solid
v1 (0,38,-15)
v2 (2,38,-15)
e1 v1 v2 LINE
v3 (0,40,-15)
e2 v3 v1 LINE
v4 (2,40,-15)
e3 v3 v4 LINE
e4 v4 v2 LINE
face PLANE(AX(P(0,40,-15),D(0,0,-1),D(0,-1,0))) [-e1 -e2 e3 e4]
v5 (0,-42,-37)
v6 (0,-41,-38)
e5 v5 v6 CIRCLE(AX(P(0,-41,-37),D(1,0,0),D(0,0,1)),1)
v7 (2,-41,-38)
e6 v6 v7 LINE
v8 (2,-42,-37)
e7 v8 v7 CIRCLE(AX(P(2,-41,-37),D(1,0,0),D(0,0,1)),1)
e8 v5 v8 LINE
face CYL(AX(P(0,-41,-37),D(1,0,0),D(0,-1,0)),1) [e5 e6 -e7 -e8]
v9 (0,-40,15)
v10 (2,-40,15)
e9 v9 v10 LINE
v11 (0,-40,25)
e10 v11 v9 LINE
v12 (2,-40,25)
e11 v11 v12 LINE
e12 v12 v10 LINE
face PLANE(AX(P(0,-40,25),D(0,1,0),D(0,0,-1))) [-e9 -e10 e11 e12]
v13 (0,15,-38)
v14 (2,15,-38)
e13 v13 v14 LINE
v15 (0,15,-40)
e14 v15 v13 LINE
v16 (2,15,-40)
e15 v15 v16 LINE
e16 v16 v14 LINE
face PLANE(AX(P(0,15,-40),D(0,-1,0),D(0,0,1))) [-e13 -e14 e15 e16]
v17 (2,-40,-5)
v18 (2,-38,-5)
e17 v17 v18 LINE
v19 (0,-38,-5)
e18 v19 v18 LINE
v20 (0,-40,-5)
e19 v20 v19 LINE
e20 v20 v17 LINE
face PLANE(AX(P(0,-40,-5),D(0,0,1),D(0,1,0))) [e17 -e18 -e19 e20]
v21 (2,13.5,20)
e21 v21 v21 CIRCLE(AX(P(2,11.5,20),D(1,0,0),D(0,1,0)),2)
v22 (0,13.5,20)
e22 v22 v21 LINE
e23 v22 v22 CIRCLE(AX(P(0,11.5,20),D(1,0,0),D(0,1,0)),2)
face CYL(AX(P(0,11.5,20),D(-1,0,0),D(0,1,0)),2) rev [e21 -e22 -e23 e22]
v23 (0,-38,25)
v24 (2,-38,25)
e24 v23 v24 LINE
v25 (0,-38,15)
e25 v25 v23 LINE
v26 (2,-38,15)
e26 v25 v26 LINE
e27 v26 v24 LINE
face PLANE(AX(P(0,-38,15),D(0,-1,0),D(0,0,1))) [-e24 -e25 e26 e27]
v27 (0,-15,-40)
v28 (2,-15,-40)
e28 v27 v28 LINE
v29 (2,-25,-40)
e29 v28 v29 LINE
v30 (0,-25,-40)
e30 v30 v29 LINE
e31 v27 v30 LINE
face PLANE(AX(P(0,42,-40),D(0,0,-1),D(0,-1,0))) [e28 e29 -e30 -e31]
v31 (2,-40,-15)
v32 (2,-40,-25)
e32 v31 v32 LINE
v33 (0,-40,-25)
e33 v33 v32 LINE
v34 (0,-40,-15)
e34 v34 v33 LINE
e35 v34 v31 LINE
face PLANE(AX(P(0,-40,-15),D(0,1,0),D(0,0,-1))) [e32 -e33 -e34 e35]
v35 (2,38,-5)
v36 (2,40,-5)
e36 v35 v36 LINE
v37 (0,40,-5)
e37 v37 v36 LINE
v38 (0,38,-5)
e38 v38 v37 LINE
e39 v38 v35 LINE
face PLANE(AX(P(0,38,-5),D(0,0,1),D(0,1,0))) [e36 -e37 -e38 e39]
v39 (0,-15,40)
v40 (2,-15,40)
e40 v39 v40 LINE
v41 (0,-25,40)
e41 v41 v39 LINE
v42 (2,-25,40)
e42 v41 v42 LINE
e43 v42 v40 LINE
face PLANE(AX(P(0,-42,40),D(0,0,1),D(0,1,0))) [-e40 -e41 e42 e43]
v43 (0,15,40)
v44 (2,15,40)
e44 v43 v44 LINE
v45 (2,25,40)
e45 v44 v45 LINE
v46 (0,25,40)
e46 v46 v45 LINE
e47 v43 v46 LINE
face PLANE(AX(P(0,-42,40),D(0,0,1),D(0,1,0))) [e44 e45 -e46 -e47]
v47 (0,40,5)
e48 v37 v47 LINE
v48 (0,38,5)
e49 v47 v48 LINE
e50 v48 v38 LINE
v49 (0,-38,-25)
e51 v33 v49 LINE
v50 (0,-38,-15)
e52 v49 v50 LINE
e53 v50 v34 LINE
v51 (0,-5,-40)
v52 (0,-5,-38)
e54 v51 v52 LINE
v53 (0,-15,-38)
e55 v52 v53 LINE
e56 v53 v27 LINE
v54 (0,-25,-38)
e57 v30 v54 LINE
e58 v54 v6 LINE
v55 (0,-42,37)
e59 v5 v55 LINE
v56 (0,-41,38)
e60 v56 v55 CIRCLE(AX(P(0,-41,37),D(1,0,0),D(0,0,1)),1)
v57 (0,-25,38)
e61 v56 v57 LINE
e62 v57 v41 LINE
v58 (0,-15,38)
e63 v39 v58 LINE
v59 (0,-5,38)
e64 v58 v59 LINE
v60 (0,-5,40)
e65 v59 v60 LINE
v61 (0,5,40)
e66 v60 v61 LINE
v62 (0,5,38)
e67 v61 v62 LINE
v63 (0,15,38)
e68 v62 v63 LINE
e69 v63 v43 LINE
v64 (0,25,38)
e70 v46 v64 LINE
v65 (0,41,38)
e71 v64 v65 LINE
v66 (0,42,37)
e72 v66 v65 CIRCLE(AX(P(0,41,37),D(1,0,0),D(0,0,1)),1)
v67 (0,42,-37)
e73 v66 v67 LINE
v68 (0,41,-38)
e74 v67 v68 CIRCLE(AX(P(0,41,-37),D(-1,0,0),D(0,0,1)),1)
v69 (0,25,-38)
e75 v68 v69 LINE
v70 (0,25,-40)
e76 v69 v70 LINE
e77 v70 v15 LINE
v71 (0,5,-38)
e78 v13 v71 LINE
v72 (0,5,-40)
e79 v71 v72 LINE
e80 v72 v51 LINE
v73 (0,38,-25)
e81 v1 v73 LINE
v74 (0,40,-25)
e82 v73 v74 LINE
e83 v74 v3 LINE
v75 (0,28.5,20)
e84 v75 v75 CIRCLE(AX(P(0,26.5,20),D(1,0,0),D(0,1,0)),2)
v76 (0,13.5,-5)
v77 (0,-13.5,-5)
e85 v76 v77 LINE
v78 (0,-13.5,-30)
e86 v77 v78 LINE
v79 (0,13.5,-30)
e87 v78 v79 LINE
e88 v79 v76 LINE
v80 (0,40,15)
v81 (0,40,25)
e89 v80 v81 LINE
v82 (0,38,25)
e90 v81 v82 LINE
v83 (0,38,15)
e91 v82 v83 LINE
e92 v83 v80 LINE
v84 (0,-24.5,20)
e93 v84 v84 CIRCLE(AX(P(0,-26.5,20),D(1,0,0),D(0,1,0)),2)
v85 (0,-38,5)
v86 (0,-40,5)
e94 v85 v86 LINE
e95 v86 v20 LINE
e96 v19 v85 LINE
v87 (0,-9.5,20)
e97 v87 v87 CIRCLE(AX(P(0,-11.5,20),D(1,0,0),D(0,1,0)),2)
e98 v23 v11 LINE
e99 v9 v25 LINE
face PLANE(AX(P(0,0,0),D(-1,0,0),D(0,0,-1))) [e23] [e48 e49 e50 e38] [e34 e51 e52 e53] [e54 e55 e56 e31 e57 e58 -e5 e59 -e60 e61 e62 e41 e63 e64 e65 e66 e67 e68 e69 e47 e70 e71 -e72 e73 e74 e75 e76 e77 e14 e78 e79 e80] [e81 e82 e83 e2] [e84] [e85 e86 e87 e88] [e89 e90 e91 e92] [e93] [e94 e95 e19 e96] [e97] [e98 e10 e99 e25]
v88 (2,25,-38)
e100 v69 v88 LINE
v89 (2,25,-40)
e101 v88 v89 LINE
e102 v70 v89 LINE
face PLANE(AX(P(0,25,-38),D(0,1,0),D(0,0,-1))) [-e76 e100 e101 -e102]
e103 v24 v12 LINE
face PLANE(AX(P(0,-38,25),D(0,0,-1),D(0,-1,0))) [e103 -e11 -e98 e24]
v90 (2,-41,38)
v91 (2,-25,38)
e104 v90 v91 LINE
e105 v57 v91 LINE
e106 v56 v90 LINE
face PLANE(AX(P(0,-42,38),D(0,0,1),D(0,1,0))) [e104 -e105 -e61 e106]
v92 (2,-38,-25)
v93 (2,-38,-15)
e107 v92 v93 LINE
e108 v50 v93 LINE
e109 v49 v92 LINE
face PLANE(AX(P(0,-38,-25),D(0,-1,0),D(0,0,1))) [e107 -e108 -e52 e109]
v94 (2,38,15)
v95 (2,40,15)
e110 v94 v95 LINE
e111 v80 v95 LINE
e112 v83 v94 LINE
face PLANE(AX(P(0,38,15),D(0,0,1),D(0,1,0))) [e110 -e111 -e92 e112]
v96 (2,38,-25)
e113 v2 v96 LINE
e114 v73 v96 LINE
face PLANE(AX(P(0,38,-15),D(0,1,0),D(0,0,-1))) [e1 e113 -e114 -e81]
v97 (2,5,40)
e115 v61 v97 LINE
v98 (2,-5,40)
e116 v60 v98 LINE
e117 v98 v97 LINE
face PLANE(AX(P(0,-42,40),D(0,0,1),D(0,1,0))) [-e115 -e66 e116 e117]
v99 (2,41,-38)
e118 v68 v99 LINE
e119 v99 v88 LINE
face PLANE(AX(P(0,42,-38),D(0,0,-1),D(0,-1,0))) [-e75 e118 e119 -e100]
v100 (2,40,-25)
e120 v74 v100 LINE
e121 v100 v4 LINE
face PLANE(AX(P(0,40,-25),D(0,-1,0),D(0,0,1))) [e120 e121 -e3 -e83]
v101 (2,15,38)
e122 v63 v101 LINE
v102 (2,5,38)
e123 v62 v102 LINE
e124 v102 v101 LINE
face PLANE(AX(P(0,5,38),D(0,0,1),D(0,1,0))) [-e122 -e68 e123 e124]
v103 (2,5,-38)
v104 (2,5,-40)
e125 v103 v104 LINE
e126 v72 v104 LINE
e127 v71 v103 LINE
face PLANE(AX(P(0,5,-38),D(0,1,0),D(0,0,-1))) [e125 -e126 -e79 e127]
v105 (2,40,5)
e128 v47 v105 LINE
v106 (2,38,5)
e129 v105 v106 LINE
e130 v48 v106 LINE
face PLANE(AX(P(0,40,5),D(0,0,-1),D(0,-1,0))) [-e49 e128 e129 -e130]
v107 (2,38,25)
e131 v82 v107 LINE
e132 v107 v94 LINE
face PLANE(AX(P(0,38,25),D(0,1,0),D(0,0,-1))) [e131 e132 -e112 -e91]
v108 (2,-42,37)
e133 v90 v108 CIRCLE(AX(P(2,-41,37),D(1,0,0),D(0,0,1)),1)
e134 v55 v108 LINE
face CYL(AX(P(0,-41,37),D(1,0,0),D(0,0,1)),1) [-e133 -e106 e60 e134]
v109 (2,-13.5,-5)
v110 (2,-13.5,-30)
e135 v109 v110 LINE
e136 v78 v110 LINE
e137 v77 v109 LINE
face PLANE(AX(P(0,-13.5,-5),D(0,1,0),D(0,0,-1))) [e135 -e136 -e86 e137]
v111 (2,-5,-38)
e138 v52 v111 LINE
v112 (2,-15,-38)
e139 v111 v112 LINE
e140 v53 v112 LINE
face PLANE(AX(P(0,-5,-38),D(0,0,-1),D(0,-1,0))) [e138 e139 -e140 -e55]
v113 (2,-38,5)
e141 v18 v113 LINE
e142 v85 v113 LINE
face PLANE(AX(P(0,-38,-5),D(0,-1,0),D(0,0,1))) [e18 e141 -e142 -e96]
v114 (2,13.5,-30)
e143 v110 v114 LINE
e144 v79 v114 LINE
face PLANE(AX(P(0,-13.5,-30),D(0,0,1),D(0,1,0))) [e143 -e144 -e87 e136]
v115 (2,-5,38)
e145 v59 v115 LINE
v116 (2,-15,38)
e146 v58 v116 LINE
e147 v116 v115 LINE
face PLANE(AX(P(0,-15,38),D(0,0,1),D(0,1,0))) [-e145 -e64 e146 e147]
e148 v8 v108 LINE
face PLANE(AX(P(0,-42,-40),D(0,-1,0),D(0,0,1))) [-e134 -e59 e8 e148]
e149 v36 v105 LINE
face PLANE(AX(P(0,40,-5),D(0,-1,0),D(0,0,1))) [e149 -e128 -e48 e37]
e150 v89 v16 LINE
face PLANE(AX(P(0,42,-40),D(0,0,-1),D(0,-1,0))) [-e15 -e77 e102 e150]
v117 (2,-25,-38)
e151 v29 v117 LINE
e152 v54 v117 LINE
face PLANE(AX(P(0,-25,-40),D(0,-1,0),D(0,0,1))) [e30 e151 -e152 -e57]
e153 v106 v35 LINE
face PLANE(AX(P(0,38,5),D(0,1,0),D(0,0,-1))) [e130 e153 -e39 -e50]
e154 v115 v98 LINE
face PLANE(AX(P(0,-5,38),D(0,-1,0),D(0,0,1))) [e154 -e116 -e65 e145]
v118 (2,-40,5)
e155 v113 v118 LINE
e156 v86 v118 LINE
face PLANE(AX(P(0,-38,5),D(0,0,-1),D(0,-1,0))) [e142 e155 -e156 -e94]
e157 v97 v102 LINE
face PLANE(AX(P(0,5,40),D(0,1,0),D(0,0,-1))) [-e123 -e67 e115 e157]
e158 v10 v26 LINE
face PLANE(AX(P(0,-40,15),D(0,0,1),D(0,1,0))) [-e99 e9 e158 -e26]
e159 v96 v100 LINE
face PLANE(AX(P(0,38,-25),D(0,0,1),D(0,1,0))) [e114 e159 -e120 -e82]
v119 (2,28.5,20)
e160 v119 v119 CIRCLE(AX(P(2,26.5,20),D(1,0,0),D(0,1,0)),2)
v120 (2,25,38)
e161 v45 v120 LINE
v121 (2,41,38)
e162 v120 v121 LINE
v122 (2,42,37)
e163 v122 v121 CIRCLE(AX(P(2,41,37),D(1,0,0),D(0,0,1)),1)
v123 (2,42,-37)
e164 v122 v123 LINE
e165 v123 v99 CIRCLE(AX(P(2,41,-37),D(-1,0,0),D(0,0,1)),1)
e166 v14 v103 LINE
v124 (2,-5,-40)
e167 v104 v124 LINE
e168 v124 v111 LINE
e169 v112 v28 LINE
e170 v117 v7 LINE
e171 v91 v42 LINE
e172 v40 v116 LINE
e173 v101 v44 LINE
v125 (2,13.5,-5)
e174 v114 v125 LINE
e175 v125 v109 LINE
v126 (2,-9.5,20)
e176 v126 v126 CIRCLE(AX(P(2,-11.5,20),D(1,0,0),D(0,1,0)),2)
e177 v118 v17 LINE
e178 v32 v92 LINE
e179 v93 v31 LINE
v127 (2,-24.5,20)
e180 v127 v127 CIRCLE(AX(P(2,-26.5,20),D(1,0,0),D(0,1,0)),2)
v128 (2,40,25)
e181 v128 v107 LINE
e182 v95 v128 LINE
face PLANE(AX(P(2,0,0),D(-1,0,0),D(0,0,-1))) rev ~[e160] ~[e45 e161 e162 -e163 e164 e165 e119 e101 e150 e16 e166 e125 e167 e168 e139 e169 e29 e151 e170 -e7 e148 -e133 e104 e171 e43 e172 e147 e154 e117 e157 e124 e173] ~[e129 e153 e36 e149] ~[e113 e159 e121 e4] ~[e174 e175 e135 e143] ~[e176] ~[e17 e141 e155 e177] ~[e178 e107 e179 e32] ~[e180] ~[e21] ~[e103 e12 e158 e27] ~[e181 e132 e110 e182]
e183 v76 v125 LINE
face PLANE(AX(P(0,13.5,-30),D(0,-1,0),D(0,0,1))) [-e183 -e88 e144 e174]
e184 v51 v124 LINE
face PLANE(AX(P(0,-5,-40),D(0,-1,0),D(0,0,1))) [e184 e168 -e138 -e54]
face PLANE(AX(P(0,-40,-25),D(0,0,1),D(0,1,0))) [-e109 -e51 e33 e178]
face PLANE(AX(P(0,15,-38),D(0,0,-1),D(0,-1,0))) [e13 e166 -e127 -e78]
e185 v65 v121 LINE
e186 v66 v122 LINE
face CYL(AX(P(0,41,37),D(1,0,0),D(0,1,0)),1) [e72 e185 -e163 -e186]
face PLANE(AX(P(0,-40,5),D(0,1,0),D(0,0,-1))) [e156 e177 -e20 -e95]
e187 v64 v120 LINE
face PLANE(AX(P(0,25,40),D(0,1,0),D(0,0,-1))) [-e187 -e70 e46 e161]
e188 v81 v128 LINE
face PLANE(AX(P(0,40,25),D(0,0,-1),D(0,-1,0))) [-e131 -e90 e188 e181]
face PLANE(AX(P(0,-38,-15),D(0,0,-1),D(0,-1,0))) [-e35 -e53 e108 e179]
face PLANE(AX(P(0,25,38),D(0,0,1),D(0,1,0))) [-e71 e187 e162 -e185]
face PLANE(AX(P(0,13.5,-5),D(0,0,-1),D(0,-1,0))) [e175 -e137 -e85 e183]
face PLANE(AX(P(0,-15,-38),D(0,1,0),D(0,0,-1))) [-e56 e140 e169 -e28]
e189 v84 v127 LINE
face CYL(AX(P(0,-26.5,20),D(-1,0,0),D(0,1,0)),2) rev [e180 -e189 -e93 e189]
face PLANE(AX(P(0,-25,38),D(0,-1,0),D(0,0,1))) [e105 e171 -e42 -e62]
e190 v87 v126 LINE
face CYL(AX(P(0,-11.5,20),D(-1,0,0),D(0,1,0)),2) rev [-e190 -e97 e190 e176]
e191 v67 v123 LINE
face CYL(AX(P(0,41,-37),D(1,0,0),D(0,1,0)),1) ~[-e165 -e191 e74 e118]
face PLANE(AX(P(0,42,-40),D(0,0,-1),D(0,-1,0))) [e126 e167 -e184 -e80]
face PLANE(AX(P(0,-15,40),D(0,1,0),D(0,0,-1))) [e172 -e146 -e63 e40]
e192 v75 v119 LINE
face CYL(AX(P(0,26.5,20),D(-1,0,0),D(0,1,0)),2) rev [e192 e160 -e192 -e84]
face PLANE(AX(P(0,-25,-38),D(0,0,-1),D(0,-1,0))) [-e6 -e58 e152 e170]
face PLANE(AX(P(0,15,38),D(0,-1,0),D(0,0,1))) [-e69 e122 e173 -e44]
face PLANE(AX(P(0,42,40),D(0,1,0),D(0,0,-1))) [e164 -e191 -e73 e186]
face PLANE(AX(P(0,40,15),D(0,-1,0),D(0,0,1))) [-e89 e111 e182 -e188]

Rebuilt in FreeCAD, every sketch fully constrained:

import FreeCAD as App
import Part
import Sketcher
Q = App.Units.Quantity


def edges_at(feature, points):
    """Names of the edges that pass closest to the given points."""
    edges = feature.Shape.Edges
    near = lambda p: min(range(len(edges)), key=lambda i: edges[i].distToShape(Part.Vertex(*p))[0])
    return sorted({f"Edge{near(p) + 1}" for p in points})


def add_polygon(sketch, points):
    """Adds a closed chain of lines whose ends are joined by coincident constraints."""
    first, n = sketch.GeometryCount, len(points)
    for a, b in zip(points, points[1:] + points[:1]):
        sketch.addGeometry(Part.LineSegment(App.Vector(*a, 0), App.Vector(*b, 0)), False)
    for i in range(n):
        sketch.addConstraint(Sketcher.Constraint("Coincident", first + i, 2, first + (i + 1) % n, 1))

doc = App.newDocument("Part")
params = doc.addObject("Spreadsheet::Sheet", "Params")
for row, (alias, value) in enumerate([
    ("sketch1_width", "84 mm"),
    ("sketch1_height", "80 mm"),
    ("pad1_length", "2 mm"),
    ("sketch2_width", "17 mm"),
    ("sketch2_width2", "10 mm"),
    ("sketch2_width3", "2 mm"),
    ("pocket1_length", "2 mm"),
    ("sketch3_diameter", "4 mm"),
    ("sketch3_width", "27 mm"),
    ("sketch3_height", "25 mm"),
    ("pocket2_length", "2 mm"),
    ("fillet_radius", "1 mm"),
], start=1):
    params.set(f"A{row}", alias)
    params.set(f"B{row}", "=" + value)
    params.setAlias(f"B{row}", alias)

body = doc.addObject("PartDesign::Body", "Body")

# Sketch on YZ plane
sketch1 = body.newObject("Sketcher::SketchObject", "Sketch")
sketch1.AttachmentSupport = (doc.getObject("YZ_Plane"), [""])
sketch1.MapMode = "FlatFace"
add_polygon(sketch1, [(42, -40), (42, 40), (-42, 40), (-42, -40)])  # lines 0-3
sketch1.addConstraint([
    Sketcher.Constraint("Vertical", 0),
    Sketcher.Constraint("Horizontal", 1),
    Sketcher.Constraint("Vertical", 2),
    Sketcher.Constraint("Horizontal", 3),
    Sketcher.Constraint("Symmetric", 0, 2, 2, 2, -1, 1),
    Sketcher.Constraint("DistanceX", 1, 2, 1, 1, Q("84 mm")),
    Sketcher.Constraint("DistanceY", 0, 1, 0, 2, Q("80 mm")),
])
sketch1.setExpression("Constraints[9]", "Params.sketch1_width")
sketch1.setExpression("Constraints[10]", "Params.sketch1_height")
pad1 = body.newObject("PartDesign::Pad", "Pad")
pad1.Profile = sketch1
pad1.setExpression("Length", "Params.pad1_length")

# Sketch on YZ plane
sketch2 = body.newObject("Sketcher::SketchObject", "Sketch001")
sketch2.AttachmentSupport = (doc.getObject("YZ_Plane"), [""])
sketch2.MapMode = "FlatFace"
add_polygon(sketch2, [(-42, 40), (-42, 38), (-25, 38), (-25, 40)])  # lines 0-3
add_polygon(sketch2, [(-5, 38), (-5, 40), (-15, 40), (-15, 38)])  # lines 4-7
add_polygon(sketch2, [(15, 38), (15, 40), (5, 40), (5, 38)])  # lines 8-11
add_polygon(sketch2, [(42, 38), (42, 40), (25, 40), (25, 38)])  # lines 12-15
add_polygon(sketch2, [(40, 25), (38, 25), (38, 15), (40, 15)])  # lines 16-19
add_polygon(sketch2, [(40, 5), (38, 5), (38, -5), (40, -5)])  # lines 20-23
add_polygon(sketch2, [(40, -15), (38, -15), (38, -25), (40, -25)])  # lines 24-27
add_polygon(sketch2, [(42, -40), (42, -38), (25, -38), (25, -40)])  # lines 28-31
add_polygon(sketch2, [(15, -40), (15, -38), (5, -38), (5, -40)])  # lines 32-35
add_polygon(sketch2, [(-5, -40), (-5, -38), (-15, -38), (-15, -40)])  # lines 36-39
add_polygon(sketch2, [(-25, -40), (-25, -38), (-42, -38), (-42, -40)])  # lines 40-43
add_polygon(sketch2, [(-40, -25), (-38, -25), (-38, -15), (-40, -15)])  # lines 44-47
add_polygon(sketch2, [(-38, -5), (-38, 5), (-40, 5), (-40, -5)])  # lines 48-51
add_polygon(sketch2, [(-40, 25), (-40, 15), (-38, 15), (-38, 25)])  # lines 52-55
sketch2.addConstraint([
    Sketcher.Constraint("Vertical", 0),
    Sketcher.Constraint("Horizontal", 1),
    Sketcher.Constraint("Vertical", 2),
    Sketcher.Constraint("Horizontal", 3),
    Sketcher.Constraint("Vertical", 4),
    Sketcher.Constraint("Horizontal", 5),
    Sketcher.Constraint("Vertical", 6),
    Sketcher.Constraint("Horizontal", 7),
    Sketcher.Constraint("Vertical", 8),
    Sketcher.Constraint("Horizontal", 9),
    Sketcher.Constraint("Vertical", 10),
    Sketcher.Constraint("Horizontal", 11),
    Sketcher.Constraint("Vertical", 12),
    Sketcher.Constraint("Horizontal", 13),
    Sketcher.Constraint("Vertical", 14),
    Sketcher.Constraint("Horizontal", 15),
    Sketcher.Constraint("Horizontal", 16),
    Sketcher.Constraint("Vertical", 17),
    Sketcher.Constraint("Horizontal", 18),
    Sketcher.Constraint("Vertical", 19),
    Sketcher.Constraint("Horizontal", 20),
    Sketcher.Constraint("Vertical", 21),
    Sketcher.Constraint("Horizontal", 22),
    Sketcher.Constraint("Vertical", 23),
    Sketcher.Constraint("Horizontal", 24),
    Sketcher.Constraint("Vertical", 25),
    Sketcher.Constraint("Horizontal", 26),
    Sketcher.Constraint("Vertical", 27),
    Sketcher.Constraint("Vertical", 28),
    Sketcher.Constraint("Horizontal", 29),
    Sketcher.Constraint("Vertical", 30),
    Sketcher.Constraint("Horizontal", 31),
    Sketcher.Constraint("Vertical", 32),
    Sketcher.Constraint("Horizontal", 33),
    Sketcher.Constraint("Vertical", 34),
    Sketcher.Constraint("Horizontal", 35),
    Sketcher.Constraint("Vertical", 36),
    Sketcher.Constraint("Horizontal", 37),
    Sketcher.Constraint("Vertical", 38),
    Sketcher.Constraint("Horizontal", 39),
    Sketcher.Constraint("Vertical", 40),
    Sketcher.Constraint("Horizontal", 41),
    Sketcher.Constraint("Vertical", 42),
    Sketcher.Constraint("Horizontal", 43),
    Sketcher.Constraint("Horizontal", 44),
    Sketcher.Constraint("Vertical", 45),
    Sketcher.Constraint("Horizontal", 46),
    Sketcher.Constraint("Vertical", 47),
    Sketcher.Constraint("Vertical", 48),
    Sketcher.Constraint("Horizontal", 49),
    Sketcher.Constraint("Vertical", 50),
    Sketcher.Constraint("Horizontal", 51),
    Sketcher.Constraint("Vertical", 52),
    Sketcher.Constraint("Horizontal", 53),
    Sketcher.Constraint("Vertical", 54),
    Sketcher.Constraint("Horizontal", 55),
    Sketcher.Constraint("Symmetric", 0, 2, 28, 2, -1, 1),
    Sketcher.Constraint("Symmetric", 2, 2, 30, 2, -1, 1),
    Sketcher.Constraint("Symmetric", 6, 2, 32, 2, -1, 1),
    Sketcher.Constraint("Symmetric", 4, 2, 34, 2, -1, 1),
    Sketcher.Constraint("Symmetric", 10, 2, 36, 2, -1, 1),
    Sketcher.Constraint("Symmetric", 8, 2, 38, 2, -1, 1),
    Sketcher.Constraint("Symmetric", 14, 2, 40, 2, -1, 1),
    Sketcher.Constraint("Symmetric", 12, 2, 42, 2, -1, 1),
    Sketcher.Constraint("Symmetric", 16, 2, 44, 2, -1, 1),
    Sketcher.Constraint("Symmetric", 18, 2, 46, 2, -1, 1),
    Sketcher.Constraint("Symmetric", 21, 2, 48, 2, -1, 1),
    Sketcher.Constraint("Symmetric", 23, 2, 50, 2, -1, 1),
    Sketcher.Constraint("Symmetric", 27, 2, 52, 2, -1, 1),
    Sketcher.Constraint("Symmetric", 25, 2, 54, 2, -1, 1),
    Sketcher.Constraint("Symmetric", 5, 2, 8, 2, -2),
    Sketcher.Constraint("Symmetric", 7, 2, 10, 2, -2),
    Sketcher.Constraint("Symmetric", 3, 2, 12, 2, -2),
    Sketcher.Constraint("Symmetric", 1, 2, 14, 2, -2),
    Sketcher.Constraint("Symmetric", 25, 2, 44, 2, -2),
    Sketcher.Constraint("Symmetric", 27, 2, 46, 2, -2),
    Sketcher.Constraint("Horizontal", 3, 2, 4, 2),
    Sketcher.Constraint("Horizontal", 1, 2, 6, 2),
    Sketcher.Constraint("Horizontal", 23, 2, 48, 2),
    Sketcher.Constraint("Vertical", 17, 2, 20, 2),
    Sketcher.Constraint("Vertical", 19, 2, 22, 2),
    Sketcher.Constraint("Equal", 55, 0),
    Sketcher.Constraint("Equal", 39, 17),
    Sketcher.Constraint("Equal", 19, 21),
    Sketcher.Constraint("DistanceX", 1, 1, 1, 2, Q("17 mm")),
    Sketcher.Constraint("DistanceX", 5, 2, 5, 1, Q("10 mm")),
    Sketcher.Constraint("DistanceX", 16, 2, 16, 1, Q("2 mm")),
    Sketcher.Constraint("DistanceX", 0, 2, -1, 1, Q("42 mm")),
    Sketcher.Constraint("DistanceY", -1, 1, 0, 2, Q("38 mm")),
    Sketcher.Constraint("DistanceX", 4, 2, -1, 1, Q("5 mm")),
    Sketcher.Constraint("DistanceX", -1, 1, 16, 2, Q("38 mm")),
    Sketcher.Constraint("DistanceY", -1, 1, 16, 2, Q("25 mm")),
])
sketch2.setExpression("Constraints[140]", "Params.sketch2_width")
sketch2.setExpression("Constraints[141]", "Params.sketch2_width2")
sketch2.setExpression("Constraints[142]", "Params.sketch2_width3")
pocket1 = body.newObject("PartDesign::Pocket", "Pocket")
pocket1.Profile = sketch2
pocket1.setExpression("Length", "Params.pocket1_length")
pocket1.Reversed = True

# Sketch on YZ plane
sketch3 = body.newObject("Sketcher::SketchObject", "Sketch002")
sketch3.AttachmentSupport = (doc.getObject("YZ_Plane"), [""])
sketch3.MapMode = "FlatFace"
sketch3.addGeometry(Part.Circle(App.Vector(-26.5, 20, 0), App.Vector(0, 0, 1), 2), False)  # 0
sketch3.addGeometry(Part.Circle(App.Vector(-11.5, 20, 0), App.Vector(0, 0, 1), 2), False)  # 1
sketch3.addGeometry(Part.Circle(App.Vector(11.5, 20, 0), App.Vector(0, 0, 1), 2), False)  # 2
sketch3.addGeometry(Part.Circle(App.Vector(26.5, 20, 0), App.Vector(0, 0, 1), 2), False)  # 3
add_polygon(sketch3, [(13.5, -30), (13.5, -5), (-13.5, -5), (-13.5, -30)])  # lines 4-7
sketch3.addConstraint([
    Sketcher.Constraint("Vertical", 4),
    Sketcher.Constraint("Horizontal", 5),
    Sketcher.Constraint("Vertical", 6),
    Sketcher.Constraint("Horizontal", 7),
    Sketcher.Constraint("Equal", 0, 1),
    Sketcher.Constraint("Equal", 1, 2),
    Sketcher.Constraint("Equal", 2, 3),
    Sketcher.Constraint("Symmetric", 1, 3, 2, 3, -2),
    Sketcher.Constraint("Symmetric", 0, 3, 3, 3, -2),
    Sketcher.Constraint("Horizontal", 0, 3, 1, 3),
    Sketcher.Constraint("Diameter", 0, Q("4 mm")),
    Sketcher.Constraint("DistanceX", 5, 2, 5, 1, Q("27 mm")),
    Sketcher.Constraint("DistanceY", 4, 1, 4, 2, Q("25 mm")),
    Sketcher.Constraint("DistanceY", -1, 1, 0, 3, Q("20 mm")),
    Sketcher.Constraint("DistanceY", 4, 2, -1, 1, Q("5 mm")),
    Sketcher.Constraint("DistanceX", 0, 3, 1, 3, Q("15 mm")),
    Sketcher.Constraint("DistanceX", 1, 3, 2, 3, Q("23 mm")),
    Sketcher.Constraint("DistanceX", 2, 3, 4, 2, Q("2 mm")),
])
sketch3.setExpression("Constraints[14]", "Params.sketch3_diameter")
sketch3.setExpression("Constraints[15]", "Params.sketch3_width")
sketch3.setExpression("Constraints[16]", "Params.sketch3_height")
pocket2 = body.newObject("PartDesign::Pocket", "Pocket001")
pocket2.Profile = sketch3
pocket2.setExpression("Length", "Params.pocket2_length")
pocket2.Reversed = True
doc.recompute()

fillet = body.newObject("PartDesign::Fillet", "Fillet")
fillet.Base = (pocket2, edges_at(pocket2, [
    (1, -42, -38),
    (1, 42, -38),
    (1, 42, 38),
    (1, -42, 38),
]))
fillet.setExpression("Radius", "Params.fillet_radius")

doc.recompute()
